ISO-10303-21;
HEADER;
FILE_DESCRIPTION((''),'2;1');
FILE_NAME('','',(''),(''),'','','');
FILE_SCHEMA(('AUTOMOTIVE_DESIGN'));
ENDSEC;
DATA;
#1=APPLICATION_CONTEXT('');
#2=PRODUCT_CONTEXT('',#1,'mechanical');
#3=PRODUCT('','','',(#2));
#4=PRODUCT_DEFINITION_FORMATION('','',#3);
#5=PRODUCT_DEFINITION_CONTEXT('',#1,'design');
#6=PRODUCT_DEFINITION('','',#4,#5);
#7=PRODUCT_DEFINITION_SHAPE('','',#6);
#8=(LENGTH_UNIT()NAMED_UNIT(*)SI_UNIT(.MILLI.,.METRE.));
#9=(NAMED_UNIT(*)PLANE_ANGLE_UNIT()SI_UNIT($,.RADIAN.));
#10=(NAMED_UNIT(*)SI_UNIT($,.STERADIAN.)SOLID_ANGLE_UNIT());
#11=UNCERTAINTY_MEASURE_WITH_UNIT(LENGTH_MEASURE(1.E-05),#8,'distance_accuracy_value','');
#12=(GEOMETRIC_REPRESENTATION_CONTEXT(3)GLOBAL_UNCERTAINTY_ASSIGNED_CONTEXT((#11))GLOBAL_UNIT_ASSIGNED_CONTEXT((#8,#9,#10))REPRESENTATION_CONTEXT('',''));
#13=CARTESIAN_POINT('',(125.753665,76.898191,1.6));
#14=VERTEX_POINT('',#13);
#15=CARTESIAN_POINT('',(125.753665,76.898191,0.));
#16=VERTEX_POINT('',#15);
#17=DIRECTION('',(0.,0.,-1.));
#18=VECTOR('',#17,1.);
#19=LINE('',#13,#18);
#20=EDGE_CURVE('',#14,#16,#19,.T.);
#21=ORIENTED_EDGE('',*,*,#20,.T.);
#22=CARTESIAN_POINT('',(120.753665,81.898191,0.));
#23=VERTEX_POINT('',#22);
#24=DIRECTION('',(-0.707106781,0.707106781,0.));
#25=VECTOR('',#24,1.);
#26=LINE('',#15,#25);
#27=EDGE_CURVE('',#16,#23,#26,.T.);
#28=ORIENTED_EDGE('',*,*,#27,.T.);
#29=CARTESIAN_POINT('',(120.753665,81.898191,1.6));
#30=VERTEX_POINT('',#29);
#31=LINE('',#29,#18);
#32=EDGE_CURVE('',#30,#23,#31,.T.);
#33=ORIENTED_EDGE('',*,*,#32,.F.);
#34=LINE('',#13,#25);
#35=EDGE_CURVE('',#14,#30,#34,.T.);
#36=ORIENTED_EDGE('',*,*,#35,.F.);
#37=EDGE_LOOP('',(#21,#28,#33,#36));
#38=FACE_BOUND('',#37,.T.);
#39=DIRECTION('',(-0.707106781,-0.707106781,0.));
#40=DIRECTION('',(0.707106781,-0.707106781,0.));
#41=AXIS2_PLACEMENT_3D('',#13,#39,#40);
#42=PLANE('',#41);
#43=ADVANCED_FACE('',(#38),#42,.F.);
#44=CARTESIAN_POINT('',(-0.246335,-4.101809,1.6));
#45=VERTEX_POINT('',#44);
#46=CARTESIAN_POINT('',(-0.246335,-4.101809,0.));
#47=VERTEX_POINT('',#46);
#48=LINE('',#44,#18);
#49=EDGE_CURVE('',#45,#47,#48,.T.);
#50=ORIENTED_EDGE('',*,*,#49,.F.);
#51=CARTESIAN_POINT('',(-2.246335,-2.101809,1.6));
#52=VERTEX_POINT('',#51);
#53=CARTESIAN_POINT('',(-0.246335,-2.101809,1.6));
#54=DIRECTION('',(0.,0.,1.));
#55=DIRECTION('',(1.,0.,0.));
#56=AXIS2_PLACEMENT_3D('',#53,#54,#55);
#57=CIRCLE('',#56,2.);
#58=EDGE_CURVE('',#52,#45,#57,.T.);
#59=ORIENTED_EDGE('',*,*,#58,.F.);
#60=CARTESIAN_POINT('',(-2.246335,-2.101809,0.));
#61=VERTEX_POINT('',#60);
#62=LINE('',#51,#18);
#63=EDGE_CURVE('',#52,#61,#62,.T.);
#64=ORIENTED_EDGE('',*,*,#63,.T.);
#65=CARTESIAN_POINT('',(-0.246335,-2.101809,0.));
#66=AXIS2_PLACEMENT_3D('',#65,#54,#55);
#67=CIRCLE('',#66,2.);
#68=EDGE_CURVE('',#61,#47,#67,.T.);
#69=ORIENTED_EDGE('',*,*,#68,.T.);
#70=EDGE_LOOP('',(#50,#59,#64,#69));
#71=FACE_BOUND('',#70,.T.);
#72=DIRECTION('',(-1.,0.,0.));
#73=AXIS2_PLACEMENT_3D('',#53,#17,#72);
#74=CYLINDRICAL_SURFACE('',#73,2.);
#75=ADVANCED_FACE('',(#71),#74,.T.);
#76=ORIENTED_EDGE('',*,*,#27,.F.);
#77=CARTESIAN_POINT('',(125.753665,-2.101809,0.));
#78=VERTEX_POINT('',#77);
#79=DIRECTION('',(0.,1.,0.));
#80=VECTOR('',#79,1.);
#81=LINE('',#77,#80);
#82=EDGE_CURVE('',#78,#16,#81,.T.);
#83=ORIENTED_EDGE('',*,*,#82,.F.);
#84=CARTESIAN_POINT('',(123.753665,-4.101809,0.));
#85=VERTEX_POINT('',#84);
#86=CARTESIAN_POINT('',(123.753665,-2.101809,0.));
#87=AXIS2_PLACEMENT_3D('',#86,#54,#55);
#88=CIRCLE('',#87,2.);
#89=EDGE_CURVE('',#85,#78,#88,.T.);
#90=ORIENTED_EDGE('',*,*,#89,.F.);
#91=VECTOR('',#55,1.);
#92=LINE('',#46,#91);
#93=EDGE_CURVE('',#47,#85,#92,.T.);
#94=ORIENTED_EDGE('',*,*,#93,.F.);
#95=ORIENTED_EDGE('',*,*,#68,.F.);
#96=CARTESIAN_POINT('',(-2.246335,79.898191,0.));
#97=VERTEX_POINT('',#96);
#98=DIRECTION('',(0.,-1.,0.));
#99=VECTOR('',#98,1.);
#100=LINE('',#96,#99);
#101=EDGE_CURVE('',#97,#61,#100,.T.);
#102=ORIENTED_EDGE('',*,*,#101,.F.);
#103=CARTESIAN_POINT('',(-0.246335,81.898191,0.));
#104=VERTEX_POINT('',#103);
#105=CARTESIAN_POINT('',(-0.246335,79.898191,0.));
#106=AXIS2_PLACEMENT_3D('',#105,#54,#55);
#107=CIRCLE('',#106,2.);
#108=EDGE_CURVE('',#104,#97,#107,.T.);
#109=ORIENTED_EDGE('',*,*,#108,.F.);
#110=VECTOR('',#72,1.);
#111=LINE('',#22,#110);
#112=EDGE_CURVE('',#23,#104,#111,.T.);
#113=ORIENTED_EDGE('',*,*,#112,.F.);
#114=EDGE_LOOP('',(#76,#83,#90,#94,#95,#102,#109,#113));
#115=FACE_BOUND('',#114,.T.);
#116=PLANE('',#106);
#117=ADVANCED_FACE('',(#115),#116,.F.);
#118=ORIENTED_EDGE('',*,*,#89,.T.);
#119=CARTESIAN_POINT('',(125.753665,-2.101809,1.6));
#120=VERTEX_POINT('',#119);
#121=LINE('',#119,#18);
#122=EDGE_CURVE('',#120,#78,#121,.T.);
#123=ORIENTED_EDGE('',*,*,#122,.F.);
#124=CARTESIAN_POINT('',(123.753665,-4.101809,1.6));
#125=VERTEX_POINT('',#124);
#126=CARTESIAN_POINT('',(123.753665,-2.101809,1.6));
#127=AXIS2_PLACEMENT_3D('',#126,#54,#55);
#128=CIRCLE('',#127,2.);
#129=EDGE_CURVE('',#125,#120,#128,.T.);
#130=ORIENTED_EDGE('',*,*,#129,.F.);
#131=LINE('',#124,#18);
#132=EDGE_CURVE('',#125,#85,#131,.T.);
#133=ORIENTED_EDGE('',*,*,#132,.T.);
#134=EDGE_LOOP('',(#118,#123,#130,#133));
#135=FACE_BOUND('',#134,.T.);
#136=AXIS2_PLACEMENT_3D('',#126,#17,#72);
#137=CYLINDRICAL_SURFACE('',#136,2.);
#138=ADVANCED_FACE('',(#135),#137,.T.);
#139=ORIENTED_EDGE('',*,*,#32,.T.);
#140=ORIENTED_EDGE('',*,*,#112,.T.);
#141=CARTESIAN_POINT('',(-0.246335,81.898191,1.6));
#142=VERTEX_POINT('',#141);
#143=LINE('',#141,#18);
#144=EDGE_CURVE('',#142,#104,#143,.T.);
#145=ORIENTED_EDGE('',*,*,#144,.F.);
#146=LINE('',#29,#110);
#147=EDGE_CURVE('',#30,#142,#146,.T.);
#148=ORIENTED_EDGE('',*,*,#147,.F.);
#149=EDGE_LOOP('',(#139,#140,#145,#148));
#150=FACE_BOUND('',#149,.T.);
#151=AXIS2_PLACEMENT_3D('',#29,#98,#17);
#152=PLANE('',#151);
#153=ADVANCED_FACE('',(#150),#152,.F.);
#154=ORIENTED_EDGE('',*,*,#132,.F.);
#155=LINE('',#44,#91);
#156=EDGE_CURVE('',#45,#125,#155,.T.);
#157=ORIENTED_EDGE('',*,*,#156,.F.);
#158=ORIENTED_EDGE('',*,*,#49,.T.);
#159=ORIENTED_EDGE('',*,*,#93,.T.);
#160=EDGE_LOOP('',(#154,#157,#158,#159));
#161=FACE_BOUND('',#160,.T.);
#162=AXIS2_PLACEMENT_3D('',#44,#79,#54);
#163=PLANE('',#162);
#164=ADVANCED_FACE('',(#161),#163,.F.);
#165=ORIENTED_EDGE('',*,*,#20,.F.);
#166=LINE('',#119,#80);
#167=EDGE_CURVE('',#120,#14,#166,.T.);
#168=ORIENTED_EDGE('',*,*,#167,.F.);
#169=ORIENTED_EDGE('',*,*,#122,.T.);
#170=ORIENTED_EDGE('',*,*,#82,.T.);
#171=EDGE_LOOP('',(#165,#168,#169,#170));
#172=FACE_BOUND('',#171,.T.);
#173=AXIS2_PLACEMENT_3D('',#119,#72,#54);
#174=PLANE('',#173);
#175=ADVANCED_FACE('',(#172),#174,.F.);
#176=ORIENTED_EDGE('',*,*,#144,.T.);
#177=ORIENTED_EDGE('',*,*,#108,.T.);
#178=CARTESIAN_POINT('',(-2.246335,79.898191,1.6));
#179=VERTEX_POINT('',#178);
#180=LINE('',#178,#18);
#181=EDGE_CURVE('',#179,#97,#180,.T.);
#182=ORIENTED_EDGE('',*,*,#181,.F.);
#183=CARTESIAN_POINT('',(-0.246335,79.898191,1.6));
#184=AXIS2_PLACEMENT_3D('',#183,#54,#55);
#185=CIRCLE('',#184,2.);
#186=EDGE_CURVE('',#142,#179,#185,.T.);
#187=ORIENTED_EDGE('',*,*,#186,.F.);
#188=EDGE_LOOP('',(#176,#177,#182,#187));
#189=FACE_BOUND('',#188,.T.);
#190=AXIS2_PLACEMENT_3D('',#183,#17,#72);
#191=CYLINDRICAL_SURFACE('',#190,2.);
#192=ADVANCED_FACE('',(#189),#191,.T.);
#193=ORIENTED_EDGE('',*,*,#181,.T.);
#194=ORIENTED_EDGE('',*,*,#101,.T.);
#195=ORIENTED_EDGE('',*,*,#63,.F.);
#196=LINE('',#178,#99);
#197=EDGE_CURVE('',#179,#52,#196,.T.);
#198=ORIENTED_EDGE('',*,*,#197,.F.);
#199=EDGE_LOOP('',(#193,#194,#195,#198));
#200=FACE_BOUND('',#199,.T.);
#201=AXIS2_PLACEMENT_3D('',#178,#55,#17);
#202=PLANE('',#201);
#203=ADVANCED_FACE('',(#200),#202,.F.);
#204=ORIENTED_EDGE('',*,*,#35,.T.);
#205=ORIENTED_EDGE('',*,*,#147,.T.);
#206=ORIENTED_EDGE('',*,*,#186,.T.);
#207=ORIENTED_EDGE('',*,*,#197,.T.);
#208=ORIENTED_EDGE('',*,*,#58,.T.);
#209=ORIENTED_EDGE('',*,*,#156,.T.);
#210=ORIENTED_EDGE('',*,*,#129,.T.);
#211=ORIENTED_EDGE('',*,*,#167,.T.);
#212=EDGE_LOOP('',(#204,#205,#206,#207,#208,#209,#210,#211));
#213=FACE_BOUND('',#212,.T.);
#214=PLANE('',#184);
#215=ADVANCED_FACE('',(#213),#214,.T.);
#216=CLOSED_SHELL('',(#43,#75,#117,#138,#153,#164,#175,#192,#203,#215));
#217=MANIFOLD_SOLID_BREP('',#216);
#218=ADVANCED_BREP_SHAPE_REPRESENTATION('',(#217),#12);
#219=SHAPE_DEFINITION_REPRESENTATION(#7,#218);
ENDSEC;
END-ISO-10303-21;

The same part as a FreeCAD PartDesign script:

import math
import FreeCAD as App
import Part
import Sketcher
Q = App.Units.Quantity

doc = App.newDocument("Part")
body = doc.addObject("PartDesign::Body", "Body")

# Sketch on XY plane
sketch1 = body.newObject("Sketcher::SketchObject", "Sketch")
sketch1.AttachmentSupport = (doc.getObject("XY_Plane"), [""])
sketch1.MapMode = "FlatFace"
sketch1.addGeometry(Part.LineSegment(App.Vector(-2.246335, 79.898191, 0), App.Vector(-2.246335, -2.101809, 0)), False)
sketch1.addGeometry(Part.ArcOfCircle(Part.Circle(App.Vector(-0.246335, -2.101809, 0), App.Vector(0, 0, 1), 2), math.radians(180), math.radians(270)), False)
sketch1.addGeometry(Part.LineSegment(App.Vector(-0.246335, -4.101809, 0), App.Vector(123.753665, -4.101809, 0)), False)
sketch1.addGeometry(Part.ArcOfCircle(Part.Circle(App.Vector(123.753665, -2.101809, 0), App.Vector(0, 0, 1), 2), math.radians(-90), math.radians(0)), False)
sketch1.addGeometry(Part.LineSegment(App.Vector(125.753665, -2.101809, 0), App.Vector(125.753665, 76.898191, 0)), False)
sketch1.addGeometry(Part.LineSegment(App.Vector(125.753665, 76.898191, 0), App.Vector(120.753665, 81.898191, 0)), False)
sketch1.addGeometry(Part.LineSegment(App.Vector(120.753665, 81.898191, 0), App.Vector(-0.246335, 81.898191, 0)), False)
sketch1.addGeometry(Part.ArcOfCircle(Part.Circle(App.Vector(-0.246335, 79.898191, 0), App.Vector(0, 0, 1), 2), math.radians(90), math.radians(180)), False)
sketch1.addConstraint(Sketcher.Constraint("Tangent", 0, 2, 1, 1))
sketch1.addConstraint(Sketcher.Constraint("Tangent", 1, 2, 2, 1))
sketch1.addConstraint(Sketcher.Constraint("Tangent", 2, 2, 3, 1))
sketch1.addConstraint(Sketcher.Constraint("Tangent", 3, 2, 4, 1))
sketch1.addConstraint(Sketcher.Constraint("Coincident", 4, 2, 5, 1))
sketch1.addConstraint(Sketcher.Constraint("Coincident", 5, 2, 6, 1))
sketch1.addConstraint(Sketcher.Constraint("Tangent", 6, 2, 7, 1))
sketch1.addConstraint(Sketcher.Constraint("Tangent", 7, 2, 0, 1))
sketch1.addConstraint(Sketcher.Constraint("Vertical", 0))
sketch1.addConstraint(Sketcher.Constraint("Horizontal", 2))
sketch1.addConstraint(Sketcher.Constraint("Vertical", 4))
sketch1.addConstraint(Sketcher.Constraint("Horizontal", 6))
sketch1.addConstraint(Sketcher.Constraint("Equal", 1, 3))
sketch1.addConstraint(Sketcher.Constraint("Equal", 3, 7))
sketch1.addConstraint(Sketcher.Constraint("Radius", 1, Q("2 mm")))
sketch1.addConstraint(Sketcher.Constraint("DistanceX", 2, 1, 2, 2, Q("124 mm")))
sketch1.addConstraint(Sketcher.Constraint("DistanceX", 6, 2, 6, 1, Q("121 mm")))
sketch1.addConstraint(Sketcher.Constraint("DistanceY", 0, 2, 0, 1, Q("82 mm")))
sketch1.addConstraint(Sketcher.Constraint("DistanceY", 4, 1, 4, 2, Q("79 mm")))
sketch1.addConstraint(Sketcher.Constraint("DistanceY", 1, 3, -1, 1, Q("2.101809 mm")))
sketch1.addConstraint(Sketcher.Constraint("DistanceX", 1, 3, -1, 1, Q("0.246335 mm")))
pad1 = body.newObject("PartDesign::Pad", "Pad")
pad1.Profile = sketch1
pad1.Length = 1.6

doc.recompute()
